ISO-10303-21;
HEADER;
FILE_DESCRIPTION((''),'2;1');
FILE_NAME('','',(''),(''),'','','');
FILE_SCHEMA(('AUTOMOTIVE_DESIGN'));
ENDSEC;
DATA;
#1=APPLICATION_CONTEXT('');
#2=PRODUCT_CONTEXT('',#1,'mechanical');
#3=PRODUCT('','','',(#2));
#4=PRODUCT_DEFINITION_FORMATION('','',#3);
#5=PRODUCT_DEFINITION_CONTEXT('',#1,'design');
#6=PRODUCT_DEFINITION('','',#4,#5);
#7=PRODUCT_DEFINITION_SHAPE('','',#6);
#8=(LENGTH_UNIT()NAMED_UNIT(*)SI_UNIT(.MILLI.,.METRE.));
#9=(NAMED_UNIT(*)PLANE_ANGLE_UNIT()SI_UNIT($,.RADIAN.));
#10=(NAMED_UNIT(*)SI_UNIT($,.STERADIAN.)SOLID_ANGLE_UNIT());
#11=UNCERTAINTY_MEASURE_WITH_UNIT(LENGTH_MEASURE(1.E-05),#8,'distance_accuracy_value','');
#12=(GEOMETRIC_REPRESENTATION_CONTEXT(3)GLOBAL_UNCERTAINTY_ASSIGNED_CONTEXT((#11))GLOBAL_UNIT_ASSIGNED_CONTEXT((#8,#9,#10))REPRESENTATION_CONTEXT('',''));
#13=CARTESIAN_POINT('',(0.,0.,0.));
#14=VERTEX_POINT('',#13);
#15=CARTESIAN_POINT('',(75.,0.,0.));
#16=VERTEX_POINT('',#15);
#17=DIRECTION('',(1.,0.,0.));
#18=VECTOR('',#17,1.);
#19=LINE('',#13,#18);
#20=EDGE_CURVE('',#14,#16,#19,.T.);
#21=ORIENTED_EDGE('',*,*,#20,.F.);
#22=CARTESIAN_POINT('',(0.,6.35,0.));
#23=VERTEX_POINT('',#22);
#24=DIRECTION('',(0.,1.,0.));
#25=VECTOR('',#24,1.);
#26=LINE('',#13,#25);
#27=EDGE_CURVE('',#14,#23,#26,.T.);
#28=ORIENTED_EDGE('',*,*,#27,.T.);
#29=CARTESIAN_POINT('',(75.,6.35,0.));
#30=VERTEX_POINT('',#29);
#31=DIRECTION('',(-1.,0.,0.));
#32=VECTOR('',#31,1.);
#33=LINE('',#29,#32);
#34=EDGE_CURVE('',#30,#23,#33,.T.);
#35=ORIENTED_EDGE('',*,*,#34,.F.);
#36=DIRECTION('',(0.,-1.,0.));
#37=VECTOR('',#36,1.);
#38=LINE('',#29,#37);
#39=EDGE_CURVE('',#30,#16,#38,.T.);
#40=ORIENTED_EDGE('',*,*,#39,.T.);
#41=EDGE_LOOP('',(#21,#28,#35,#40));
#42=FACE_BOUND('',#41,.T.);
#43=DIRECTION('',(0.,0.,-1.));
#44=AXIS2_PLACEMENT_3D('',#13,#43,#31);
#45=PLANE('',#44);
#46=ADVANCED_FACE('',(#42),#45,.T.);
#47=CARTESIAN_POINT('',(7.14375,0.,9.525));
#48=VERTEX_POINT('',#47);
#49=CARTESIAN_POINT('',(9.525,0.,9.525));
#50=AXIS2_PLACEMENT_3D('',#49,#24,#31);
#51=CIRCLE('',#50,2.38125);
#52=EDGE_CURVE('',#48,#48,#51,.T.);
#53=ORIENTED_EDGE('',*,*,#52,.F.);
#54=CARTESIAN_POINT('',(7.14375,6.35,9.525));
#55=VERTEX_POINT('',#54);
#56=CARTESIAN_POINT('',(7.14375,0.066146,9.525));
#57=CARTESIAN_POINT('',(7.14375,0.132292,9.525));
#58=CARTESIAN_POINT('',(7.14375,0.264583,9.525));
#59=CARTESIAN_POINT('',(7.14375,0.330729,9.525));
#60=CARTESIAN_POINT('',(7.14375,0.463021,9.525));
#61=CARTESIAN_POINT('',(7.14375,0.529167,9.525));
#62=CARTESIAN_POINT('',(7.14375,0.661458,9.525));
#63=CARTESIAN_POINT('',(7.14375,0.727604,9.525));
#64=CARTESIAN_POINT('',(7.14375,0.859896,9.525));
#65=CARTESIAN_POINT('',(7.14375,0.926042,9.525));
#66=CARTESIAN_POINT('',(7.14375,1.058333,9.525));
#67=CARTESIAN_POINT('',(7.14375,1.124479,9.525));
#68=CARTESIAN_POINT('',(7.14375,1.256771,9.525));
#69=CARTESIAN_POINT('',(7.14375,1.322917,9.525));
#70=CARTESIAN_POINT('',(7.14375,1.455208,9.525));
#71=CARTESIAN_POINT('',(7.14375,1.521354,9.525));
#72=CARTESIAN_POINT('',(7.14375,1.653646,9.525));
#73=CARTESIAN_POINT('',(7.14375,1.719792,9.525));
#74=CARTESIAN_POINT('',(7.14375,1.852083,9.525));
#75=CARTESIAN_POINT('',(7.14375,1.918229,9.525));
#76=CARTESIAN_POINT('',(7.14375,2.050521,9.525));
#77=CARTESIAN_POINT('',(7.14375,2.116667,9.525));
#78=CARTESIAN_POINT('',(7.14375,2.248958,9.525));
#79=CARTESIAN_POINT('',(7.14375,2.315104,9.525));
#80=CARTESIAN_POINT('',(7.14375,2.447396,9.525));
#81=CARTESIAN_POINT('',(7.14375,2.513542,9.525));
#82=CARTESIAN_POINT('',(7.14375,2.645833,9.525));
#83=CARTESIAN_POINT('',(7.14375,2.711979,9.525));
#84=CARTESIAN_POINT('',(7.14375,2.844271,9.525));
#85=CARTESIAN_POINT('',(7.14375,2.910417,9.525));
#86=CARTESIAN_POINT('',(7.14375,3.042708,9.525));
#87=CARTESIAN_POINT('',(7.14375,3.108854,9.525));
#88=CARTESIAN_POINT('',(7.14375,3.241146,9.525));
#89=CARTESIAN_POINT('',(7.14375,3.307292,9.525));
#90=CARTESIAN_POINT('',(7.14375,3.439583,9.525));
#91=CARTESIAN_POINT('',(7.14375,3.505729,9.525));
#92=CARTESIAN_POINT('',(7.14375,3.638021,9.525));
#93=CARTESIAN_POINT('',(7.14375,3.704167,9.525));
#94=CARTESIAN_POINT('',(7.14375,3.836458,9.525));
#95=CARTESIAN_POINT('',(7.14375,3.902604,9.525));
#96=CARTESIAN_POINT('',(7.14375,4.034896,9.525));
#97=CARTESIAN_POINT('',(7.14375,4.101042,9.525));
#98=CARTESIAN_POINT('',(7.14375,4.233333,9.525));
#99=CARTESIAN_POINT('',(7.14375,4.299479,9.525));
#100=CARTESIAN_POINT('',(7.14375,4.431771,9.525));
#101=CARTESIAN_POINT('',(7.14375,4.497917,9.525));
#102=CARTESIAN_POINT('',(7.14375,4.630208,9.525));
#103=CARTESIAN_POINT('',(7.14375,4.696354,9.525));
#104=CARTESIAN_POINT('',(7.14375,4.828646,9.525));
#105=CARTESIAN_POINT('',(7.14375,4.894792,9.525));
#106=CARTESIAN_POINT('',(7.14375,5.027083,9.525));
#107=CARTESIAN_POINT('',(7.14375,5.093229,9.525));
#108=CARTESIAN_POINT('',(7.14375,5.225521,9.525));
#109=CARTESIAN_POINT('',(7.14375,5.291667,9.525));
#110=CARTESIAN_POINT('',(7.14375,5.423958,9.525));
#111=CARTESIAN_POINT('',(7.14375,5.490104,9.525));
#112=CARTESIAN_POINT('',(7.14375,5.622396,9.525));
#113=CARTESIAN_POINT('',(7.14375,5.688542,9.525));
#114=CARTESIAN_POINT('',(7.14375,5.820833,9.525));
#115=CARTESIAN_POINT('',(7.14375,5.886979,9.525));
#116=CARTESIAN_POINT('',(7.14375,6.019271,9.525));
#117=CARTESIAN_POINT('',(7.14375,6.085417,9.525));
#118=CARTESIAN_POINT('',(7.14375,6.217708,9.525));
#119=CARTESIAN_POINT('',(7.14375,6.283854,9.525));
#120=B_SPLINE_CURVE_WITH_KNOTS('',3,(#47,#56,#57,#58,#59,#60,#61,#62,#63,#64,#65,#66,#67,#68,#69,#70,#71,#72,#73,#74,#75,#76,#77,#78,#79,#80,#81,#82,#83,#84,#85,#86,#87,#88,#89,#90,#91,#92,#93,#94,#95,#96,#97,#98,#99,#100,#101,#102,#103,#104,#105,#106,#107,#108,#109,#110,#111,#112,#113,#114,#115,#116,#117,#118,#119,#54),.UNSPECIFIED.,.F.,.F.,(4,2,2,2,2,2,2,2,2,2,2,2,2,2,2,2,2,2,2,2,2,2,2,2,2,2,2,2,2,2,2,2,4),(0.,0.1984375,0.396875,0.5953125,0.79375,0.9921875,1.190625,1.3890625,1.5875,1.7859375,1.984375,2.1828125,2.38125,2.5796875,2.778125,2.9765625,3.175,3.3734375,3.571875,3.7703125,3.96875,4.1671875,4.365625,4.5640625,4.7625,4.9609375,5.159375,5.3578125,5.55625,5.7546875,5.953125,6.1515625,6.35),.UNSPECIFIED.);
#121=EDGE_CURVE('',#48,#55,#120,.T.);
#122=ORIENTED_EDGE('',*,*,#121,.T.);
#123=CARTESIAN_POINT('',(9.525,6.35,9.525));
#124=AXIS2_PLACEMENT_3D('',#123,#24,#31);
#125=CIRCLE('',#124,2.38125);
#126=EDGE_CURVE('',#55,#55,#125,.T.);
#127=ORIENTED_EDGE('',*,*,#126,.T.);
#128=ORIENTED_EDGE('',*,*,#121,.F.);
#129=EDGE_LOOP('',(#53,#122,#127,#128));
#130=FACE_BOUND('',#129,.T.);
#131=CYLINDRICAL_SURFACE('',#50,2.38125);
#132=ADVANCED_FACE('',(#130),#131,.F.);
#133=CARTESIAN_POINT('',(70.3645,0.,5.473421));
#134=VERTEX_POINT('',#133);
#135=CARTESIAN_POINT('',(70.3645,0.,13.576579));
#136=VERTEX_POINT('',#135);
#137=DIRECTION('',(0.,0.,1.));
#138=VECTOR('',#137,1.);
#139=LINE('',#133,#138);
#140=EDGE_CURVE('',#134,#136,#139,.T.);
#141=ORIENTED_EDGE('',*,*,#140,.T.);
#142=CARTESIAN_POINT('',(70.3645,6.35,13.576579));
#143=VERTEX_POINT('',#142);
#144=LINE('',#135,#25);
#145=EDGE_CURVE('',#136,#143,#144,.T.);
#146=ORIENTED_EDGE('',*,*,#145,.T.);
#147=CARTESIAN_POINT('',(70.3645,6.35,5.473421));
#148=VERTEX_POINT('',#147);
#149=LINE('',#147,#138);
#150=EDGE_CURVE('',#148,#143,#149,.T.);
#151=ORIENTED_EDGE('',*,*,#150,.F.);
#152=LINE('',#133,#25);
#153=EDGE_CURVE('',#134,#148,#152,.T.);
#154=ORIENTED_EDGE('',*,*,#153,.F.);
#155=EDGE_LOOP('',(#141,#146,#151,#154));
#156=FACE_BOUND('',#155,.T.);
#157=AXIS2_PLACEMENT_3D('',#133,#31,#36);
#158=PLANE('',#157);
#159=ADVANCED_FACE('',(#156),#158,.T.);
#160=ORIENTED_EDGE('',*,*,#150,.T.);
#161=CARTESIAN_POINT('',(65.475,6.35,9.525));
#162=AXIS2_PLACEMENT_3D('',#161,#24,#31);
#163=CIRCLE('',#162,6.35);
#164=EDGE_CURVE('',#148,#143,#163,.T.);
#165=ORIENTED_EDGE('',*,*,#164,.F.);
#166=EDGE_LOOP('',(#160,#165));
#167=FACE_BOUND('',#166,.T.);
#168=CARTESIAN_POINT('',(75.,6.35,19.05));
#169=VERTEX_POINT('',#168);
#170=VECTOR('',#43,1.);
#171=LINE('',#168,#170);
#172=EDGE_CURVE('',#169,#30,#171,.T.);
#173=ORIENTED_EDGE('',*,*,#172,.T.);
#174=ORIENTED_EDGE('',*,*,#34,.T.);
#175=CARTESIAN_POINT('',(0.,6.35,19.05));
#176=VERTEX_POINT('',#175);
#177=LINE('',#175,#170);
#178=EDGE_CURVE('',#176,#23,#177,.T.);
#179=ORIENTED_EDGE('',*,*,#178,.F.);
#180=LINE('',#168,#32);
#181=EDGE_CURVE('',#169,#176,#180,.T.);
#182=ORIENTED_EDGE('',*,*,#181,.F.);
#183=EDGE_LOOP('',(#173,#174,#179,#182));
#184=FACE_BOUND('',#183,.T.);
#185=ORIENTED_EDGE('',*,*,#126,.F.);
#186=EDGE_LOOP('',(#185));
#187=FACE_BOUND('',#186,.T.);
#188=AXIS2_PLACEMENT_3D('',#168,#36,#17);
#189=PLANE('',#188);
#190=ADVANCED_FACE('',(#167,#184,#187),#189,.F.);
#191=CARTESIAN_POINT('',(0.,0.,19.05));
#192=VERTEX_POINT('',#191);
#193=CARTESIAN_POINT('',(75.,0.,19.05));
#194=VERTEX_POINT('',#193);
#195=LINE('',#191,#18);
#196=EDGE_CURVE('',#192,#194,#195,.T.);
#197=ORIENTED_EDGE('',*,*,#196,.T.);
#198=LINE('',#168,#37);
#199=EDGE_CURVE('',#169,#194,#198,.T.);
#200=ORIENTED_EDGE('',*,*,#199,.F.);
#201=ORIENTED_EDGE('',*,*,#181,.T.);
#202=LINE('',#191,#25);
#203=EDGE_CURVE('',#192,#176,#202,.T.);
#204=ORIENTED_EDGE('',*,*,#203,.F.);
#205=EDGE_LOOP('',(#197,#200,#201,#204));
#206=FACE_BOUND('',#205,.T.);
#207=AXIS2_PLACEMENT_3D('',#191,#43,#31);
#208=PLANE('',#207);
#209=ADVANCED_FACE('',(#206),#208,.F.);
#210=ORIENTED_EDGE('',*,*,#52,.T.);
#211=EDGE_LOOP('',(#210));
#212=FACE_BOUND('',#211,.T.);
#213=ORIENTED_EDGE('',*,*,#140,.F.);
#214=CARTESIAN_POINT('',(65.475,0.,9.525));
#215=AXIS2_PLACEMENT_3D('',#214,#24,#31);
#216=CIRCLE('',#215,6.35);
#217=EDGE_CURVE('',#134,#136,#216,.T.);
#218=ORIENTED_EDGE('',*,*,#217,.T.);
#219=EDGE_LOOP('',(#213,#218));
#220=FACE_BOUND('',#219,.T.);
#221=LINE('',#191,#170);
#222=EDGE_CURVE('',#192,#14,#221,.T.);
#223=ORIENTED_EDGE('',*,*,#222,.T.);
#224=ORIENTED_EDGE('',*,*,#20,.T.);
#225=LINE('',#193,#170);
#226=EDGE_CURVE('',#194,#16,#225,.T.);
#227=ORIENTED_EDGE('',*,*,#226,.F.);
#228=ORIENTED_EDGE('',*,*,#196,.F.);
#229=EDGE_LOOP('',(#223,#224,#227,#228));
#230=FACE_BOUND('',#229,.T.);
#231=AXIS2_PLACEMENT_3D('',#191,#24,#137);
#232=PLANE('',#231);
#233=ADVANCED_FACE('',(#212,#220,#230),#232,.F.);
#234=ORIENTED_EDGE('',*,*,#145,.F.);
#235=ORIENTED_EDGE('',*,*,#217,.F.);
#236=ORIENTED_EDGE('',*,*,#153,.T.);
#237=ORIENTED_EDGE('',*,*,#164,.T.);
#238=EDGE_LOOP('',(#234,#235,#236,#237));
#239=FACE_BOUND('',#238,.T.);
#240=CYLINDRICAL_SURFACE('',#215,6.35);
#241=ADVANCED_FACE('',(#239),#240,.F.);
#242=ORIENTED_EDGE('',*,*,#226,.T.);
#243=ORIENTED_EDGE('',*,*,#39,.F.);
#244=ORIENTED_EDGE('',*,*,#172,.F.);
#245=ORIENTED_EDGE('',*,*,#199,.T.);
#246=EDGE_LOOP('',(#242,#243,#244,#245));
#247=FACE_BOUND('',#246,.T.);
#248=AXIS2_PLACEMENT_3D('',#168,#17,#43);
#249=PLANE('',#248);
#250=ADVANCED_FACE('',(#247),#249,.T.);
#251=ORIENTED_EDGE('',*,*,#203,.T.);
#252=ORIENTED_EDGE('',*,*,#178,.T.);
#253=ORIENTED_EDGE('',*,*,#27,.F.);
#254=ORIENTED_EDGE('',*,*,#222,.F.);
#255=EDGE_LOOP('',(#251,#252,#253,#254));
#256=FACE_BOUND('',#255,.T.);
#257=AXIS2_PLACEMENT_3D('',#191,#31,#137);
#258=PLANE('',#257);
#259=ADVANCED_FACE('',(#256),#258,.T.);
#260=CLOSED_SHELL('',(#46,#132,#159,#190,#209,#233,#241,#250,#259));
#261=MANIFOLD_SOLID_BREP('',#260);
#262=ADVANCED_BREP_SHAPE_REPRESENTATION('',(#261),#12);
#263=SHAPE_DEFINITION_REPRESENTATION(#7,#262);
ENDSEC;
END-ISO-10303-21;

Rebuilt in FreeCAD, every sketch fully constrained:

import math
import FreeCAD as App
import Part
import Sketcher
Q = App.Units.Quantity


def add_polygon(sketch, points):
    """Adds a closed chain of lines whose ends are joined by coincident constraints."""
    first, n = sketch.GeometryCount, len(points)
    for a, b in zip(points, points[1:] + points[:1]):
        sketch.addGeometry(Part.LineSegment(App.Vector(*a, 0), App.Vector(*b, 0)), False)
    for i in range(n):
        sketch.addConstraint(Sketcher.Constraint("Coincident", first + i, 2, first + (i + 1) % n, 1))

doc = App.newDocument("Part")
body = doc.addObject("PartDesign::Body", "Body")

# Sketch on XY plane
sketch1 = doc.addObject("Sketcher::SketchObject", "Sketch")
body.addObject(sketch1)
sketch1.AttachmentSupport = (doc.XY_Plane, [""])
sketch1.MapMode = "FlatFace"
add_polygon(sketch1, [(0, 6), (0, 0), (75, 0), (75, 6)])  # lines 0-3
sketch1.addConstraint([
    Sketcher.Constraint("Vertical", 0),
    Sketcher.Constraint("Horizontal", 1),
    Sketcher.Constraint("Vertical", 2),
    Sketcher.Constraint("Horizontal", 3),
    Sketcher.Constraint("Coincident", 0, 2, -1, 1),
    Sketcher.Constraint("DistanceY", 0, 2, 0, 1, Q("0.25 in")),
    Sketcher.Constraint("DistanceX", 1, 1, 1, 2, Q("75 mm")),
])
pad1 = doc.addObject("PartDesign::Pad", "Pad")
body.addObject(pad1)
pad1.Profile = sketch1
pad1.Length = Q("0.75 in")

# Sketch on XZ plane
sketch2 = doc.addObject("Sketcher::SketchObject", "Sketch001")
body.addObject(sketch2)
sketch2.AttachmentSupport = (doc.XZ_Plane, [""])
sketch2.MapMode = "FlatFace"
sketch2.AttachmentOffset = App.Placement(App.Vector(0, 0, -0.25 * 25.4), App.Rotation())
sketch2.addGeometry([
    Part.LineSegment(App.Vector(70, 14, 0), App.Vector(70, 5, 0)),
    Part.ArcOfCircle(Part.Circle(App.Vector(65, 10, 0), App.Vector(0, 0, 1), 6), math.radians(40), math.radians(320)),
], False)
sketch2.addConstraint([
    Sketcher.Constraint("Coincident", 0, 1, 1, 1),
    Sketcher.Constraint("Coincident", 1, 2, 0, 2),
    Sketcher.Constraint("Vertical", 0),
    Sketcher.Constraint("Radius", 1, Q("0.25 in")),
    Sketcher.Constraint("DistanceY", -1, 1, 1, 3, Q("0.375 in")),
    Sketcher.Constraint("DistanceX", 1, 3, 0, 1, Q("0.1925 in")),
    Sketcher.Constraint("DistanceX", -1, 1, 1, 3, Q("65.475 mm")),
])
pocket1 = doc.addObject("PartDesign::Pocket", "Pocket")
body.addObject(pocket1)
pocket1.Profile = sketch2
pocket1.Type = "ThroughAll"
pocket1.Reversed = True

# Sketch on XZ plane
sketch3 = doc.addObject("Sketcher::SketchObject", "Sketch002")
body.addObject(sketch3)
sketch3.AttachmentSupport = (doc.XZ_Plane, [""])
sketch3.MapMode = "FlatFace"
sketch3.AttachmentOffset = App.Placement(App.Vector(0, 0, -0.25 * 25.4), App.Rotation())
sketch3.addGeometry(Part.Circle(App.Vector(9.5, 9.5, 0), App.Vector(0, 0, 1), 2.4), False)
sketch3.addConstraint([
    Sketcher.Constraint("Diameter", 0, Q("0.1875 in")),
    Sketcher.Constraint("DistanceX", -1, 1, 0, 3, Q("0.375 in")),
    Sketcher.Constraint("DistanceY", -1, 1, 0, 3, Q("0.375 in")),
])
pocket2 = doc.addObject("PartDesign::Pocket", "Pocket001")
body.addObject(pocket2)
pocket2.Profile = sketch3
pocket2.Type = "ThroughAll"
pocket2.Reversed = True

doc.recompute()
